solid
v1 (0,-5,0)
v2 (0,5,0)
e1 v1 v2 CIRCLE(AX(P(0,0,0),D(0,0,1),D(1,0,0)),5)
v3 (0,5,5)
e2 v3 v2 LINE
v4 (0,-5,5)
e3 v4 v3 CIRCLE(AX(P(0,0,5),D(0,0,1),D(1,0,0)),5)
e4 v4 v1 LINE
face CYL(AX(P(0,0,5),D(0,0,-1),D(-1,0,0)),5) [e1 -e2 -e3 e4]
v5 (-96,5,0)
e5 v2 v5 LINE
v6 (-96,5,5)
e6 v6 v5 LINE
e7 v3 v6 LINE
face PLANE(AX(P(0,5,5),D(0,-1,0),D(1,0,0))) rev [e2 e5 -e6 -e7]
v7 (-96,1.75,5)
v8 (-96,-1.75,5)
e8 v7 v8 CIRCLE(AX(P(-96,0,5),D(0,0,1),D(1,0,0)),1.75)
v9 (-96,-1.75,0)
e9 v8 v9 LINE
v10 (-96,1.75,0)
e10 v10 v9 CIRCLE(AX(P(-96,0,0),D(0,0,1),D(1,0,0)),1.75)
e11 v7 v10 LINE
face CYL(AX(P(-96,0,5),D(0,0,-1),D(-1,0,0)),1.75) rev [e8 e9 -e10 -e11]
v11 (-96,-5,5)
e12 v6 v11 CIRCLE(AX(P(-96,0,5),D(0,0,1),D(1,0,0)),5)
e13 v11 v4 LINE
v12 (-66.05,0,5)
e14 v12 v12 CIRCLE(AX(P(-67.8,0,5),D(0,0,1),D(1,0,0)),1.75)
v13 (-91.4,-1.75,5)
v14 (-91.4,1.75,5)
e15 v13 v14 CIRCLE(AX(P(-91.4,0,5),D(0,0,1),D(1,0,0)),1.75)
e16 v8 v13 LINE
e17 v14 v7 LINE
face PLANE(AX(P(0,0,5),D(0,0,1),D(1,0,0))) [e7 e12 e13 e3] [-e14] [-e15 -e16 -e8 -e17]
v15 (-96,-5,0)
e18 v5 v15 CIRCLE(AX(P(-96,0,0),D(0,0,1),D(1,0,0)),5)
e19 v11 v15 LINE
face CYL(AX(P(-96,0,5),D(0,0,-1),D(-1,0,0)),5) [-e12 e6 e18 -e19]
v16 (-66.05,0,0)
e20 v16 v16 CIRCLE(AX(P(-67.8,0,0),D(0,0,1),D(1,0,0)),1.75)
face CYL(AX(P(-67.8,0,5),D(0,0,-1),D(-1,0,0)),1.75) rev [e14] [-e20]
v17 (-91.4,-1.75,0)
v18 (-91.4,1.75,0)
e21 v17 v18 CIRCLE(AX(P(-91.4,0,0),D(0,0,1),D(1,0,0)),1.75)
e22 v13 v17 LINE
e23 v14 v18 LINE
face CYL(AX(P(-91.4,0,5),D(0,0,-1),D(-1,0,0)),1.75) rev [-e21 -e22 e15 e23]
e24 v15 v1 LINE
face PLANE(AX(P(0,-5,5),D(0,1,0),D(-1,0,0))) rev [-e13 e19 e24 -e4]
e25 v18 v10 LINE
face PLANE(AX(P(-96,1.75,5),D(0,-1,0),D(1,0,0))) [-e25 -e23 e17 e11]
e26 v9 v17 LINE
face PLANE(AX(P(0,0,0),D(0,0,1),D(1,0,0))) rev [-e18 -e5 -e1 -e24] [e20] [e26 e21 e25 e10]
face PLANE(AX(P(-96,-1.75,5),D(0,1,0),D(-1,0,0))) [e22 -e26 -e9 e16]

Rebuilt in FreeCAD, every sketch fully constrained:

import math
import FreeCAD as App
import Part
import Sketcher
from FreeCAD import Vector
Q = App.Units.Quantity

doc = App.newDocument("Part")
body = doc.addObject("PartDesign::Body", "Body")

# Sketch on XY plane
sketch1 = body.newObject("Sketcher::SketchObject", "Sketch")
sketch1.AttachmentSupport = (doc.getObject("XY_Plane"), [""])
sketch1.MapMode = "FlatFace"
sketch1.addGeometry([
    Part.LineSegment(Vector(-96, -5, 0), Vector(0, -5, 0)),  # 0
    Part.ArcOfCircle(Part.Circle(Vector(0, 0, 0), Vector(0, 0, 1), 5), math.radians(-90), math.radians(90)),  # 1
    Part.LineSegment(Vector(0, 5, 0), Vector(-96, 5, 0)),  # 2
    Part.ArcOfCircle(Part.Circle(Vector(-96, 0, 0), Vector(0, 0, 1), 5), math.radians(90), math.radians(270)),  # 3
    Part.Circle(Vector(-67.8, 0, 0), Vector(0, 0, 1), 1.8),  # 4
    Part.LineSegment(Vector(-96, 1.8, 0), Vector(-91.4, 1.8, 0)),  # 5
    Part.ArcOfCircle(Part.Circle(Vector(-91.4, 0, 0), Vector(0, 0, 1), 1.8), math.radians(-90), math.radians(90)),  # 6
    Part.LineSegment(Vector(-91.4, -1.8, 0), Vector(-96, -1.8, 0)),  # 7
    Part.ArcOfCircle(Part.Circle(Vector(-96, 0, 0), Vector(0, 0, 1), 1.8), math.radians(90), math.radians(270)),  # 8
], False)
sketch1.addConstraint([
    Sketcher.Constraint("Tangent", 0, 2, 1, 1),
    Sketcher.Constraint("Tangent", 1, 2, 2, 1),
    Sketcher.Constraint("Tangent", 2, 2, 3, 1),
    Sketcher.Constraint("Tangent", 3, 2, 0, 1),
    Sketcher.Constraint("Tangent", 5, 2, 6, 2),
    Sketcher.Constraint("Tangent", 6, 1, 7, 1),
    Sketcher.Constraint("Tangent", 7, 2, 8, 2),
    Sketcher.Constraint("Tangent", 8, 1, 5, 1),
    Sketcher.Constraint("Horizontal", 0),
    Sketcher.Constraint("Horizontal", 2),
    Sketcher.Constraint("Horizontal", 5),
    Sketcher.Constraint("Horizontal", 7),
    Sketcher.Constraint("Coincident", 1, 3, -1, 1),
    Sketcher.Constraint("Coincident", 8, 3, 3, 3),
    Sketcher.Constraint("Equal", 4, 6),
    Sketcher.Constraint("PointOnObject", 4, 3, -1),
    Sketcher.Constraint("Radius", 1, Q("5 mm")),
    Sketcher.Constraint("Diameter", 4, Q("3.5 mm")),
    Sketcher.Constraint("DistanceX", 0, 1, 0, 2, Q("96 mm")),
    Sketcher.Constraint("DistanceX", 5, 1, 5, 2, Q("4.6 mm")),
    Sketcher.Constraint("DistanceX", 4, 3, -1, 1, Q("67.8 mm")),
])
pad1 = body.newObject("PartDesign::Pad", "Pad")
pad1.Profile = sketch1
pad1.Length = 5

doc.recompute()
